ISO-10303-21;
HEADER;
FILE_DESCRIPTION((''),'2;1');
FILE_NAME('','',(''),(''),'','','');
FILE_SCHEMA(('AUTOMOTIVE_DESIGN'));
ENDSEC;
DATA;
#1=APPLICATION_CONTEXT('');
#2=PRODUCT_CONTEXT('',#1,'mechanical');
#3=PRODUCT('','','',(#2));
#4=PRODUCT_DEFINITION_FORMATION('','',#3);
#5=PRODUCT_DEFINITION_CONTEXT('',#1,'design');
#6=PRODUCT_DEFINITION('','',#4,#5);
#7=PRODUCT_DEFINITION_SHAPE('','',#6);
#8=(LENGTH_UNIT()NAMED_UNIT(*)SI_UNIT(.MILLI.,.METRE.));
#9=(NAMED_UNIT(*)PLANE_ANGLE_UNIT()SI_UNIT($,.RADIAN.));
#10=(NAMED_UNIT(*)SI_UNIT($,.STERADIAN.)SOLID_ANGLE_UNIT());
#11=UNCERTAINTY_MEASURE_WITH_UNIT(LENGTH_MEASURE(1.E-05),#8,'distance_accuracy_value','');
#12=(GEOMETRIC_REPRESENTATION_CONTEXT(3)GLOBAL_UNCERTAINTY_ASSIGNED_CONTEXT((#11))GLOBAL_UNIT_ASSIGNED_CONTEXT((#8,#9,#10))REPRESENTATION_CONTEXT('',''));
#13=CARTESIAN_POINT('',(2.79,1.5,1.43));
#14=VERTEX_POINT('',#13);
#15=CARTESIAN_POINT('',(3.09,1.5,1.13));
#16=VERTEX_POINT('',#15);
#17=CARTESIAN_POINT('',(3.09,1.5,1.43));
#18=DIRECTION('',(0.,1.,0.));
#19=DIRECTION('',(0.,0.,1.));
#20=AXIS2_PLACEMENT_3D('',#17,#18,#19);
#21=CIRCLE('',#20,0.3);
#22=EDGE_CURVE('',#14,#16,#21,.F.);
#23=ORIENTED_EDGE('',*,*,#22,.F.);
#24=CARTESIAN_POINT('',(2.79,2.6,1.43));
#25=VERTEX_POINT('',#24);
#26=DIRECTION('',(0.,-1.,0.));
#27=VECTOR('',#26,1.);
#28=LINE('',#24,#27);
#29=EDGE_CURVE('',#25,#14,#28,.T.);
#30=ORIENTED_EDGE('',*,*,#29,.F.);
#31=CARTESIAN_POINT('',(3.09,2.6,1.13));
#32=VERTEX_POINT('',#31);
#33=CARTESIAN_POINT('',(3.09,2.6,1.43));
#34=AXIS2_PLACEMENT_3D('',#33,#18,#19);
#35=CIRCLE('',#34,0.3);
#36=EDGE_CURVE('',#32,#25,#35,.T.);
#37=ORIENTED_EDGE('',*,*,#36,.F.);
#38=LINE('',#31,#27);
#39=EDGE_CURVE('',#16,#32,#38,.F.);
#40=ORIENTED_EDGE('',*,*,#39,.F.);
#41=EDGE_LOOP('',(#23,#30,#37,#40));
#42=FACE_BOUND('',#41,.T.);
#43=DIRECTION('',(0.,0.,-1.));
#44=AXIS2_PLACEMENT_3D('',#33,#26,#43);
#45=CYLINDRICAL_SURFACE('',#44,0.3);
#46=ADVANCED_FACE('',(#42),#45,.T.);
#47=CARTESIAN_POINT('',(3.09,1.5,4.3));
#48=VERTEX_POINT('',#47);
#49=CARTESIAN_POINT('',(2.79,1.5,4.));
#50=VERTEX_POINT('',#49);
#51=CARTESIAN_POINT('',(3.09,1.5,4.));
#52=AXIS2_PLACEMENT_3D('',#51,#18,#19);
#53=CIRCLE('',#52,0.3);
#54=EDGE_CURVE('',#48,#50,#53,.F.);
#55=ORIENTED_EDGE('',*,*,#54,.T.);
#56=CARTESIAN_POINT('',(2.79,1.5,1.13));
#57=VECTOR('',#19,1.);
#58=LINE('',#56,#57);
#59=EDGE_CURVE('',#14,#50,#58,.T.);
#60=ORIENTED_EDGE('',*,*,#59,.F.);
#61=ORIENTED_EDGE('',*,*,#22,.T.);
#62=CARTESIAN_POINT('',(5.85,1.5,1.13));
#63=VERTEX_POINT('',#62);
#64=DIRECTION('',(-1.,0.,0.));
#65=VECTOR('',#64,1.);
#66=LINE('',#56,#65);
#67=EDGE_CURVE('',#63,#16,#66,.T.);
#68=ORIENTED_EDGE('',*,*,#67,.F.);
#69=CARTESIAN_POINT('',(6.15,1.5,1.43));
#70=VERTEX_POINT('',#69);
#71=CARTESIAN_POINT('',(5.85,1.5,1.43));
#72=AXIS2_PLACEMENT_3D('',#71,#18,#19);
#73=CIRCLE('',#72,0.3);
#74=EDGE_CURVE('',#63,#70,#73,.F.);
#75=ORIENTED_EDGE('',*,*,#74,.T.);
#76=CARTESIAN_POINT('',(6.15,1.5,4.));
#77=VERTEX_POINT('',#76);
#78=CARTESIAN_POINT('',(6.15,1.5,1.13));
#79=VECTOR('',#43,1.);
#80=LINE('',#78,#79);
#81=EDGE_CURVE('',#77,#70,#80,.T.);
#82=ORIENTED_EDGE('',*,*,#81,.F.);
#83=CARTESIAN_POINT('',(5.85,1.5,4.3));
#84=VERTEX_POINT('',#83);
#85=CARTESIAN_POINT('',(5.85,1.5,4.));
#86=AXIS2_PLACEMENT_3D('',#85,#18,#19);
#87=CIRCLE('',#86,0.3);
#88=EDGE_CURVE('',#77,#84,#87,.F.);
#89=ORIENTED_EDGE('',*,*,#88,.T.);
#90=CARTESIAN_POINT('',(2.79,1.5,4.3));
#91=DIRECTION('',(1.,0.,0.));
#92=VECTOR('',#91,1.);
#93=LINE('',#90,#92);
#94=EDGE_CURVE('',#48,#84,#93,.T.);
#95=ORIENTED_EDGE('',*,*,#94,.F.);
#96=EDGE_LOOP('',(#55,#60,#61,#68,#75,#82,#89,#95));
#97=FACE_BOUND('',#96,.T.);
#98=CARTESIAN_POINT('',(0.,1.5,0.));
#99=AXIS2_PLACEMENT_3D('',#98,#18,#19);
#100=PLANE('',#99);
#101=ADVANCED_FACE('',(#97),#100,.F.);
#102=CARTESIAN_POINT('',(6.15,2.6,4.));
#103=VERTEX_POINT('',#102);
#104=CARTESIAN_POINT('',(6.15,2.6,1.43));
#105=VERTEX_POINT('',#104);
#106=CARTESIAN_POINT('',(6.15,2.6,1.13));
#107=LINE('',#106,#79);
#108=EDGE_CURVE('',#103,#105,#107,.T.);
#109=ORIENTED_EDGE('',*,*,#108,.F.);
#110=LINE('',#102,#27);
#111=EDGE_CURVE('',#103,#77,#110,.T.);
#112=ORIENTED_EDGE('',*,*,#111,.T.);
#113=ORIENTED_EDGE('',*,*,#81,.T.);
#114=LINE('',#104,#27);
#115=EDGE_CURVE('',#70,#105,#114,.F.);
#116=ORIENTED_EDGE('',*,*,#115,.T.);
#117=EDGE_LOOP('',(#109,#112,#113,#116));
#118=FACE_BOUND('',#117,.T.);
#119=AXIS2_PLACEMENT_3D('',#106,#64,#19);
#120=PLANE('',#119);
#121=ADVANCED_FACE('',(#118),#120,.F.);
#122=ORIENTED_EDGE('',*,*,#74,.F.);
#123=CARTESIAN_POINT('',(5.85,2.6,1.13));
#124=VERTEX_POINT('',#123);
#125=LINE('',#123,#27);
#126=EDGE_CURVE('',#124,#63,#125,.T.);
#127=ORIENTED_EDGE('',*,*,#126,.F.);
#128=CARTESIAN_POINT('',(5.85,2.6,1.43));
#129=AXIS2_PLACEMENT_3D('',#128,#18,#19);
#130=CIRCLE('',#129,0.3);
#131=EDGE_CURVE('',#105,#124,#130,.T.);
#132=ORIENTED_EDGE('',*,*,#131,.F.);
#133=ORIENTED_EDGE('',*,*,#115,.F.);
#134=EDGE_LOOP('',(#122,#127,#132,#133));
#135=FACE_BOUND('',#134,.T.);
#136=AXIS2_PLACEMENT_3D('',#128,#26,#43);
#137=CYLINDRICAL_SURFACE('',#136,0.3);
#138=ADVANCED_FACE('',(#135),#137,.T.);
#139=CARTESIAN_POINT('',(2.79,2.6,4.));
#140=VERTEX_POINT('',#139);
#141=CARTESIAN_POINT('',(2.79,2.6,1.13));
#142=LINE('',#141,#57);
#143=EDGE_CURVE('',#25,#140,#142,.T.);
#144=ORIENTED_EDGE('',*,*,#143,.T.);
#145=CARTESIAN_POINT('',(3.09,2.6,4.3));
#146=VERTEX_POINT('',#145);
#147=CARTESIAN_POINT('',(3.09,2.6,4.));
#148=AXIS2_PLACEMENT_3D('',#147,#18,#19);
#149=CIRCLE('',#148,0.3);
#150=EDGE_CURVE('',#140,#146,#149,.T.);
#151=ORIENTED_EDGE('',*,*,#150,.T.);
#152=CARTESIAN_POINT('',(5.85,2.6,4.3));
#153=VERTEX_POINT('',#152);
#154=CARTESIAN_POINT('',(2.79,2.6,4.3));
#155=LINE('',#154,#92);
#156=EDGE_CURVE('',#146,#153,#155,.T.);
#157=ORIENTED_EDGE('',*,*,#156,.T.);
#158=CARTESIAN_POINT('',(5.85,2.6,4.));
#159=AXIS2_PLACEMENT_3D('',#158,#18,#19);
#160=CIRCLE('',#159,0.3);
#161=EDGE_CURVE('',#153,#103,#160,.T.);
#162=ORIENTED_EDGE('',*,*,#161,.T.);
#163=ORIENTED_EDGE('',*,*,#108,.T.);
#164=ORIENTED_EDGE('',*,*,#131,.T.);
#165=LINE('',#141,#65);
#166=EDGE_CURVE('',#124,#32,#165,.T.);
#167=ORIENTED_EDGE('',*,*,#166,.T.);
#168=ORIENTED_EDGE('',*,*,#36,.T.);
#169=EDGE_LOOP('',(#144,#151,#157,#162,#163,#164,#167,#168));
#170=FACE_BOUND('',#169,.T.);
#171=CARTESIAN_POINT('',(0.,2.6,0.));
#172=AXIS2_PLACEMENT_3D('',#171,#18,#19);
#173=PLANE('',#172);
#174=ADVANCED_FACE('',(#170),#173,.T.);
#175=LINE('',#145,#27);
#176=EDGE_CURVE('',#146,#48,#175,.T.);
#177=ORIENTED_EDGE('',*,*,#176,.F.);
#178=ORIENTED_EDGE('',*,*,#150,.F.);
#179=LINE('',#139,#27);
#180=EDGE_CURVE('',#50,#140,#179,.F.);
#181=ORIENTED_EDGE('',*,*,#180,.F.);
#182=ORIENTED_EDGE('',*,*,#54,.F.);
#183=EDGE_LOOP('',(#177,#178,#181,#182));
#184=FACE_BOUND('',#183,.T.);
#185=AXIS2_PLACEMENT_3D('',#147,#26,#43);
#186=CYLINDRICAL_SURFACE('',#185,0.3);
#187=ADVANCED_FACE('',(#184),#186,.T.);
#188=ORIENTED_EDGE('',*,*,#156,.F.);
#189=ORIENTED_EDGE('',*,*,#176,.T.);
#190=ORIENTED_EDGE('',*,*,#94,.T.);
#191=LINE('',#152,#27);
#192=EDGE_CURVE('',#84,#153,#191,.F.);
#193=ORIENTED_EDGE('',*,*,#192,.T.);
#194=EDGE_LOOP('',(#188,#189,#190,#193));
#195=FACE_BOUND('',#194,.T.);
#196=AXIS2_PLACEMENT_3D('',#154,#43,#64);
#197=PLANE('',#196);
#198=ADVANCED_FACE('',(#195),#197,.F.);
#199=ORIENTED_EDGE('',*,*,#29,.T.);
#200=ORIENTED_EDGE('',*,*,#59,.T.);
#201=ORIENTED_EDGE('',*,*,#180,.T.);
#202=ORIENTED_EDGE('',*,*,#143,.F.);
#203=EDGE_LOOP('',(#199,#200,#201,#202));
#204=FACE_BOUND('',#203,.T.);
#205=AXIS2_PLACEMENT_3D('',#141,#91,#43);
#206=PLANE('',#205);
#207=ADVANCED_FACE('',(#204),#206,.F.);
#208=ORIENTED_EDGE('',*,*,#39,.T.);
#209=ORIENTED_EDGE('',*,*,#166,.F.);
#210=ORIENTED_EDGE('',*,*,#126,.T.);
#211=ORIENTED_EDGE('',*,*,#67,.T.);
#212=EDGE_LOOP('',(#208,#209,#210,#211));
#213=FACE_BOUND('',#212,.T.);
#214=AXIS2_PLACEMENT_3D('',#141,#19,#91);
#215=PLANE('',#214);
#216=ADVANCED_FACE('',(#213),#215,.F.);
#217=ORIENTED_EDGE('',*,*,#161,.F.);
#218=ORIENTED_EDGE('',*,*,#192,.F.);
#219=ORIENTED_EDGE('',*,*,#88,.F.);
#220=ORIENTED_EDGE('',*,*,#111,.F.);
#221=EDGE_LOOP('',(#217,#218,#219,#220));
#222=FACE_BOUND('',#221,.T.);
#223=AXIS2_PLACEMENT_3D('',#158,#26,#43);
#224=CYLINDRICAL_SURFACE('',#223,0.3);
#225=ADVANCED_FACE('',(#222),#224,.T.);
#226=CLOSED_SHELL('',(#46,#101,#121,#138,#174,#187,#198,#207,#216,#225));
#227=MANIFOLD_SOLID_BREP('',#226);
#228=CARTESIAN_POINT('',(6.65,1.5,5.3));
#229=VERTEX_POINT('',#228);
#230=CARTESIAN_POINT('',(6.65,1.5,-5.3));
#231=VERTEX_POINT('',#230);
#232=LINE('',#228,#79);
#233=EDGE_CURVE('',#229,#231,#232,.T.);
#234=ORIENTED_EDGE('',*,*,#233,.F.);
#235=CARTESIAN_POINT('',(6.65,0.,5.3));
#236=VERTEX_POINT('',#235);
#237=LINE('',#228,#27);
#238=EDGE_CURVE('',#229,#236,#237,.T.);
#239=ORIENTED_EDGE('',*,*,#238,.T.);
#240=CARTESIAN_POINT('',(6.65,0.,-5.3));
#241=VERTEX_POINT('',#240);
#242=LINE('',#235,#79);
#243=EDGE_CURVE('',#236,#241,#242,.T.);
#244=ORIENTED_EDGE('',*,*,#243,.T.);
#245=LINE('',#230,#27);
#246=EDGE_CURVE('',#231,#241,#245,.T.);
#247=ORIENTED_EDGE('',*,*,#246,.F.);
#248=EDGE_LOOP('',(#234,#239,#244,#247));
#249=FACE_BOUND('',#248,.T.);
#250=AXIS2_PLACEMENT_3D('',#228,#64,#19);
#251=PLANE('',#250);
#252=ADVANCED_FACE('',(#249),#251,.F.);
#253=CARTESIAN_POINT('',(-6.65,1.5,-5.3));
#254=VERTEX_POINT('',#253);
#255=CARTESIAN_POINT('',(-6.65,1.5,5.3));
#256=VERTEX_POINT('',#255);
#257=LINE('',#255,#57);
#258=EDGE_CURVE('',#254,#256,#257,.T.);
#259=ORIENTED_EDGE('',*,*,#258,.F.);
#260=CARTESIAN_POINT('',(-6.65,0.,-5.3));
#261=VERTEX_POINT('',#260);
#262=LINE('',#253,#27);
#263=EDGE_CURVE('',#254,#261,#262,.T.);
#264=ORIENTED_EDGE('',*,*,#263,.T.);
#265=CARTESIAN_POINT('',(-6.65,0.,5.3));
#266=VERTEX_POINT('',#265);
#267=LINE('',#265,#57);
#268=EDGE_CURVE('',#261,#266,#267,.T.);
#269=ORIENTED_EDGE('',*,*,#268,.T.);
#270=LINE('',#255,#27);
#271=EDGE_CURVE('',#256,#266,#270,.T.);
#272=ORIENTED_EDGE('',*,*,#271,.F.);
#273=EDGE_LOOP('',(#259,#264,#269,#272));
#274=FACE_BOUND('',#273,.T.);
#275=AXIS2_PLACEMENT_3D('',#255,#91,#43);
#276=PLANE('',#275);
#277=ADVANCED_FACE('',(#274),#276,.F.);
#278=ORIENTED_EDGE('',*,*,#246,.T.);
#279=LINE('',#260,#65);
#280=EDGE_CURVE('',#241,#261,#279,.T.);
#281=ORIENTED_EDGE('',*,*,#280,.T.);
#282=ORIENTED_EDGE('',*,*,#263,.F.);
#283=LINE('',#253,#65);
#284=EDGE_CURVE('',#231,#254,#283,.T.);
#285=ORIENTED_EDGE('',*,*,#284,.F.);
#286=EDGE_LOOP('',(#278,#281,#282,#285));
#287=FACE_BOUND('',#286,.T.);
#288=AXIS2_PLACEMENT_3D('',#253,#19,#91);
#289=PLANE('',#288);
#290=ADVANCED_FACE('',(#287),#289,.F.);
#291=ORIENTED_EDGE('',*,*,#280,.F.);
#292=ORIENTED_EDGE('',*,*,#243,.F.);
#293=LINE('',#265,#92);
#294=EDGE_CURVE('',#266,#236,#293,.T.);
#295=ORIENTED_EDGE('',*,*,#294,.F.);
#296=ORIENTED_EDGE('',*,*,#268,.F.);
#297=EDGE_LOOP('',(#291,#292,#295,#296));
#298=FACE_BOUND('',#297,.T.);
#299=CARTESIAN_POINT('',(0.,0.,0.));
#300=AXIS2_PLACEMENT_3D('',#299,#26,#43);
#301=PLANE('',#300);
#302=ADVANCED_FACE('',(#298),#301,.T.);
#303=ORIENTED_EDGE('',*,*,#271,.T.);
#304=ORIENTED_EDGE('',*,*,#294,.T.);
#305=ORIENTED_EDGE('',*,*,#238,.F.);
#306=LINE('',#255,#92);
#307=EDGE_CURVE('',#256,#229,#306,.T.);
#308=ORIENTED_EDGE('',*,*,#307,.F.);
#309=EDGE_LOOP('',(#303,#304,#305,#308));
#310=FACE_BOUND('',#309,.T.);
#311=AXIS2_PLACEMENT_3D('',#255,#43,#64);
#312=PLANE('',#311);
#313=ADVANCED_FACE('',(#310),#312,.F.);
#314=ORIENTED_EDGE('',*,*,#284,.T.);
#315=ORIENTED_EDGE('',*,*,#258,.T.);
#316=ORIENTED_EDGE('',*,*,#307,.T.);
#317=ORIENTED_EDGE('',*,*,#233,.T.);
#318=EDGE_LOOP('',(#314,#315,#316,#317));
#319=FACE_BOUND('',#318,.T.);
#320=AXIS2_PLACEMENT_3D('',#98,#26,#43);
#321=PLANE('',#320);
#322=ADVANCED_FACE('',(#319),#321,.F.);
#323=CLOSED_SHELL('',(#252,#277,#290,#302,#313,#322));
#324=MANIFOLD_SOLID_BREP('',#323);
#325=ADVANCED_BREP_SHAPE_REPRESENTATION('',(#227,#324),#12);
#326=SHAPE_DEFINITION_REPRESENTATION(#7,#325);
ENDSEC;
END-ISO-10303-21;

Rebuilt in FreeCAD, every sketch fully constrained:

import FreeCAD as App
import Part
import Sketcher

V = App.Vector
Q = App.Units.Quantity


def edges_at(feature, points):
    """Names of the edges that pass closest to the given points."""
    edges = feature.Shape.Edges
    near = lambda p: min(range(len(edges)), key=lambda i: edges[i].distToShape(Part.Vertex(*p))[0])
    return sorted({f"Edge{near(p) + 1}" for p in points})

doc = App.newDocument("Part")
params = doc.addObject("Spreadsheet::Sheet", "Params")
for row, (alias, value) in enumerate([
    ("sketch1_width", "13.3 mm"),
    ("sketch1_height", "10.6 mm"),
    ("pad1_length", "1.5 mm"),
    ("sketch2_width", "3.36 mm"),
    ("sketch2_height", "3.17 mm"),
    ("pad2_length", "1.1 mm"),
    ("fillet_radius", "0.3 mm"),
], start=1):
    params.set(f"A{row}", alias)
    params.set(f"B{row}", "=" + value)
    params.setAlias(f"B{row}", alias)

body = doc.addObject("PartDesign::Body", "Body")

sketch1 = body.newObject("Sketcher::SketchObject", "Sketch")
sketch1.AttachmentSupport = (doc.getObject("XZ_Plane"), [""])
sketch1.MapMode = "FlatFace"
sketch1.addGeometry(Part.LineSegment(V(-6.65, -5.3, 0), V(-6.65, 5.3, 0)), False)
sketch1.addGeometry(Part.LineSegment(V(-6.65, 5.3, 0), V(6.65, 5.3, 0)), False)
sketch1.addGeometry(Part.LineSegment(V(6.65, 5.3, 0), V(6.65, -5.3, 0)), False)
sketch1.addGeometry(Part.LineSegment(V(6.65, -5.3, 0), V(-6.65, -5.3, 0)), False)
sketch1.addConstraint(Sketcher.Constraint("Coincident", 0, 2, 1, 1))
sketch1.addConstraint(Sketcher.Constraint("Coincident", 1, 2, 2, 1))
sketch1.addConstraint(Sketcher.Constraint("Coincident", 2, 2, 3, 1))
sketch1.addConstraint(Sketcher.Constraint("Coincident", 3, 2, 0, 1))
sketch1.addConstraint(Sketcher.Constraint("Vertical", 0))
sketch1.addConstraint(Sketcher.Constraint("Horizontal", 1))
sketch1.addConstraint(Sketcher.Constraint("Vertical", 2))
sketch1.addConstraint(Sketcher.Constraint("Horizontal", 3))
sketch1.addConstraint(Sketcher.Constraint("Symmetric", 0, 2, 2, 2, -1, 1))
sketch1.addConstraint(Sketcher.Constraint("DistanceX", 1, 1, 1, 2, Q("13.3 mm")))
sketch1.addConstraint(Sketcher.Constraint("DistanceY", 0, 1, 0, 2, Q("10.6 mm")))
sketch1.setExpression("Constraints[9]", "Params.sketch1_width")
sketch1.setExpression("Constraints[10]", "Params.sketch1_height")
pad1 = body.newObject("PartDesign::Pad", "Pad")
pad1.Profile = sketch1
pad1.setExpression("Length", "Params.pad1_length")
pad1.Reversed = True
body2 = doc.addObject("PartDesign::Body", "Body001")

sketch2 = body2.newObject("Sketcher::SketchObject", "Sketch001")
sketch2.AttachmentSupport = (doc.getObject("XZ_Plane001"), [""])
sketch2.MapMode = "FlatFace"
sketch2.AttachmentOffset = App.Placement(V(0, 0, -1.5), App.Rotation())
sketch2.addGeometry(Part.LineSegment(V(2.79, 1.13, 0), V(2.79, 4.3, 0)), False)
sketch2.addGeometry(Part.LineSegment(V(2.79, 4.3, 0), V(6.15, 4.3, 0)), False)
sketch2.addGeometry(Part.LineSegment(V(6.15, 4.3, 0), V(6.15, 1.13, 0)), False)
sketch2.addGeometry(Part.LineSegment(V(6.15, 1.13, 0), V(2.79, 1.13, 0)), False)
sketch2.addConstraint(Sketcher.Constraint("Coincident", 0, 2, 1, 1))
sketch2.addConstraint(Sketcher.Constraint("Coincident", 1, 2, 2, 1))
sketch2.addConstraint(Sketcher.Constraint("Coincident", 2, 2, 3, 1))
sketch2.addConstraint(Sketcher.Constraint("Coincident", 3, 2, 0, 1))
sketch2.addConstraint(Sketcher.Constraint("Vertical", 0))
sketch2.addConstraint(Sketcher.Constraint("Horizontal", 1))
sketch2.addConstraint(Sketcher.Constraint("Vertical", 2))
sketch2.addConstraint(Sketcher.Constraint("Horizontal", 3))
sketch2.addConstraint(Sketcher.Constraint("DistanceX", 1, 1, 1, 2, Q("3.36 mm")))
sketch2.addConstraint(Sketcher.Constraint("DistanceY", 0, 1, 0, 2, Q("3.17 mm")))
sketch2.addConstraint(Sketcher.Constraint("DistanceY", -1, 1, 0, 2, Q("4.3 mm")))
sketch2.addConstraint(Sketcher.Constraint("DistanceX", -1, 1, 0, 2, Q("2.79 mm")))
sketch2.setExpression("Constraints[8]", "Params.sketch2_width")
sketch2.setExpression("Constraints[9]", "Params.sketch2_height")
pad2 = body2.newObject("PartDesign::Pad", "Pad001")
pad2.Profile = sketch2
pad2.setExpression("Length", "Params.pad2_length")
pad2.Reversed = True
doc.recompute()

fillet = body2.newObject("PartDesign::Fillet", "Fillet")
fillet.Base = (pad2, edges_at(pad2, [
    (6.15, 2.05, 4.3),
    (2.79, 2.05, 4.3),
    (2.79, 2.05, 1.13),
    (6.15, 2.05, 1.13),
]))
fillet.setExpression("Radius", "Params.fillet_radius")

doc.recompute()
